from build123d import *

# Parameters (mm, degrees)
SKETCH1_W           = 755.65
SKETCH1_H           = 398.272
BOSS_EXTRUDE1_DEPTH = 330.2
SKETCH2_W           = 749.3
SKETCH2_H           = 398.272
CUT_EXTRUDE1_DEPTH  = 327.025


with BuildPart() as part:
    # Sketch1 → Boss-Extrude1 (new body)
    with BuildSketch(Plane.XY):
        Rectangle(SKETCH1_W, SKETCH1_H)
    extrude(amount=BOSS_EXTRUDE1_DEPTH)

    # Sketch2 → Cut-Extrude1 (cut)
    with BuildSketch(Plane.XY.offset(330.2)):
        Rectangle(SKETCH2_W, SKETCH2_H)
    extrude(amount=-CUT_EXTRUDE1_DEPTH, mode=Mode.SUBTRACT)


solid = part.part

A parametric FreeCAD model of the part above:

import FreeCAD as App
import Part
import Sketcher

V = App.Vector
Q = App.Units.Quantity

doc = App.newDocument("Part")
body = doc.addObject("PartDesign::Body", "Body")

sketch1 = body.newObject("Sketcher::SketchObject", "Sketch")
sketch1.AttachmentSupport = (doc.getObject("XY_Plane"), [""])
sketch1.MapMode = "FlatFace"
sketch1.addGeometry([
    Part.LineSegment(V(-378, 199, 0), V(-378, -199, 0)),
    Part.LineSegment(V(-378, -199, 0), V(378, -199, 0)),
    Part.LineSegment(V(378, -199, 0), V(378, 199, 0)),
    Part.LineSegment(V(378, 199, 0), V(-378, 199, 0)),
], False)
sketch1.addConstraint([
    Sketcher.Constraint("Coincident", 0, 2, 1, 1),
    Sketcher.Constraint("Coincident", 1, 2, 2, 1),
    Sketcher.Constraint("Coincident", 2, 2, 3, 1),
    Sketcher.Constraint("Coincident", 3, 2, 0, 1),
    Sketcher.Constraint("Vertical", 0),
    Sketcher.Constraint("Horizontal", 1),
    Sketcher.Constraint("Vertical", 2),
    Sketcher.Constraint("Horizontal", 3),
    Sketcher.Constraint("Symmetric", 0, 2, 2, 2, -1, 1),
    Sketcher.Constraint("DistanceX", 1, 1, 1, 2, Q("29.75 in")),
    Sketcher.Constraint("DistanceY", 0, 2, 0, 1, Q("15.68 in")),
])
pad1 = body.newObject("PartDesign::Pad", "Pad")
pad1.Profile = sketch1
pad1.Length = Q("13 in")

sketch2 = body.newObject("Sketcher::SketchObject", "Sketch001")
sketch2.AttachmentSupport = (doc.getObject("XY_Plane"), [""])
sketch2.MapMode = "FlatFace"
sketch2.AttachmentOffset = App.Placement(V(0, 0, 13 * 25.4), App.Rotation())
sketch2.addGeometry([
    Part.LineSegment(V(-375, 199, 0), V(-375, -199, 0)),
    Part.LineSegment(V(-375, -199, 0), V(375, -199, 0)),
    Part.LineSegment(V(375, -199, 0), V(375, 199, 0)),
    Part.LineSegment(V(375, 199, 0), V(-375, 199, 0)),
], False)
sketch2.addConstraint([
    Sketcher.Constraint("Coincident", 0, 2, 1, 1),
    Sketcher.Constraint("Coincident", 1, 2, 2, 1),
    Sketcher.Constraint("Coincident", 2, 2, 3, 1),
    Sketcher.Constraint("Coincident", 3, 2, 0, 1),
    Sketcher.Constraint("Vertical", 0),
    Sketcher.Constraint("Horizontal", 1),
    Sketcher.Constraint("Vertical", 2),
    Sketcher.Constraint("Horizontal", 3),
    Sketcher.Constraint("Symmetric", 0, 2, 2, 2, -1, 1),
    Sketcher.Constraint("DistanceX", 1, 1, 1, 2, Q("29.5 in")),
    Sketcher.Constraint("DistanceY", 0, 2, 0, 1, Q("15.68 in")),
])
pocket1 = body.newObject("PartDesign::Pocket", "Pocket")
pocket1.Profile = sketch2
pocket1.Length = Q("12.875 in")

doc.recompute()
